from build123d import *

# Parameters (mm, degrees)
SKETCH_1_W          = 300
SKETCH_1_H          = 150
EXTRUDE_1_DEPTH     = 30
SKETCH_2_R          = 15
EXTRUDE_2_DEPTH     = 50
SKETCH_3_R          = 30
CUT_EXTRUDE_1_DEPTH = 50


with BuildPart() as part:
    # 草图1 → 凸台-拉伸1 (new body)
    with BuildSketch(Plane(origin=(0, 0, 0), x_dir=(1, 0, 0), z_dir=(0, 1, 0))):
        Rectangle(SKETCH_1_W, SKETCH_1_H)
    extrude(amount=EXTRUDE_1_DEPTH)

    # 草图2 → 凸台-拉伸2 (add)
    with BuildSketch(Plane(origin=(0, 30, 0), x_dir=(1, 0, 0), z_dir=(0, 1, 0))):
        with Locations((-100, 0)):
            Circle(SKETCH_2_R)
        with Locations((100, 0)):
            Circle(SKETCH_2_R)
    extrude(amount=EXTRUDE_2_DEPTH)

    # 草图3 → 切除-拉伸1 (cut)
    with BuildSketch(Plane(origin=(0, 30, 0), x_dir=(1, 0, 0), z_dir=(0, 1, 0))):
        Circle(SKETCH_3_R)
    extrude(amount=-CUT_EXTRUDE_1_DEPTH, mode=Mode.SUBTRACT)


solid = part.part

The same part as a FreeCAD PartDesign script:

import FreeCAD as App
import Part
import Sketcher

V = App.Vector
Q = App.Units.Quantity

doc = App.newDocument("Part")
body = doc.addObject("PartDesign::Body", "Body")

# Sketch on XZ plane
sketch1 = body.newObject("Sketcher::SketchObject", "Sketch")
sketch1.AttachmentSupport = (doc.getObject("XZ_Plane"), [""])
sketch1.MapMode = "FlatFace"
sketch1.addGeometry(Part.LineSegment(V(-150, -75, 0), V(-150, 75, 0)), False)
sketch1.addGeometry(Part.LineSegment(V(-150, 75, 0), V(150, 75, 0)), False)
sketch1.addGeometry(Part.LineSegment(V(150, 75, 0), V(150, -75, 0)), False)
sketch1.addGeometry(Part.LineSegment(V(150, -75, 0), V(-150, -75, 0)), False)
sketch1.addConstraint(Sketcher.Constraint("Coincident", 0, 2, 1, 1))
sketch1.addConstraint(Sketcher.Constraint("Coincident", 1, 2, 2, 1))
sketch1.addConstraint(Sketcher.Constraint("Coincident", 2, 2, 3, 1))
sketch1.addConstraint(Sketcher.Constraint("Coincident", 3, 2, 0, 1))
sketch1.addConstraint(Sketcher.Constraint("Vertical", 0))
sketch1.addConstraint(Sketcher.Constraint("Horizontal", 1))
sketch1.addConstraint(Sketcher.Constraint("Vertical", 2))
sketch1.addConstraint(Sketcher.Constraint("Horizontal", 3))
sketch1.addConstraint(Sketcher.Constraint("Symmetric", 0, 2, 2, 2, -1, 1))
sketch1.addConstraint(Sketcher.Constraint("DistanceX", 1, 1, 1, 2, Q("300 mm")))
sketch1.addConstraint(Sketcher.Constraint("DistanceY", 0, 1, 0, 2, Q("150 mm")))
pad1 = body.newObject("PartDesign::Pad", "Pad")
pad1.Profile = sketch1
pad1.Length = 30
pad1.Reversed = True

# Sketch on XZ plane
sketch2 = body.newObject("Sketcher::SketchObject", "Sketch001")
sketch2.AttachmentSupport = (doc.getObject("XZ_Plane"), [""])
sketch2.MapMode = "FlatFace"
sketch2.AttachmentOffset = App.Placement(V(0, 0, -30), App.Rotation())
sketch2.addGeometry(Part.Circle(V(-100, 0, 0), V(0, 0, 1), 15), False)
sketch2.addGeometry(Part.Circle(V(100, 0, 0), V(0, 0, 1), 15), False)
sketch2.addConstraint(Sketcher.Constraint("Equal", 0, 1))
sketch2.addConstraint(Sketcher.Constraint("Symmetric", 0, 3, 1, 3, -1, 1))
sketch2.addConstraint(Sketcher.Constraint("PointOnObject", 0, 3, -1))
sketch2.addConstraint(Sketcher.Constraint("Diameter", 0, Q("30 mm")))
sketch2.addConstraint(Sketcher.Constraint("DistanceX", 0, 3, -1, 1, Q("100 mm")))
pad2 = body.newObject("PartDesign::Pad", "Pad001")
pad2.Profile = sketch2
pad2.Length = 50
pad2.Reversed = True

# Sketch on XZ plane
sketch3 = body.newObject("Sketcher::SketchObject", "Sketch002")
sketch3.AttachmentSupport = (doc.getObject("XZ_Plane"), [""])
sketch3.MapMode = "FlatFace"
sketch3.AttachmentOffset = App.Placement(V(0, 0, -30), App.Rotation())
sketch3.addGeometry(Part.Circle(V(0, 0, 0), V(0, 0, 1), 30), False)
sketch3.addConstraint(Sketcher.Constraint("Coincident", 0, 3, -1, 1))
sketch3.addConstraint(Sketcher.Constraint("Diameter", 0, Q("60 mm")))
pocket1 = body.newObject("PartDesign::Pocket", "Pocket")
pocket1.Profile = sketch3
pocket1.Length = 50
pocket1.Reversed = True

doc.recompute()
